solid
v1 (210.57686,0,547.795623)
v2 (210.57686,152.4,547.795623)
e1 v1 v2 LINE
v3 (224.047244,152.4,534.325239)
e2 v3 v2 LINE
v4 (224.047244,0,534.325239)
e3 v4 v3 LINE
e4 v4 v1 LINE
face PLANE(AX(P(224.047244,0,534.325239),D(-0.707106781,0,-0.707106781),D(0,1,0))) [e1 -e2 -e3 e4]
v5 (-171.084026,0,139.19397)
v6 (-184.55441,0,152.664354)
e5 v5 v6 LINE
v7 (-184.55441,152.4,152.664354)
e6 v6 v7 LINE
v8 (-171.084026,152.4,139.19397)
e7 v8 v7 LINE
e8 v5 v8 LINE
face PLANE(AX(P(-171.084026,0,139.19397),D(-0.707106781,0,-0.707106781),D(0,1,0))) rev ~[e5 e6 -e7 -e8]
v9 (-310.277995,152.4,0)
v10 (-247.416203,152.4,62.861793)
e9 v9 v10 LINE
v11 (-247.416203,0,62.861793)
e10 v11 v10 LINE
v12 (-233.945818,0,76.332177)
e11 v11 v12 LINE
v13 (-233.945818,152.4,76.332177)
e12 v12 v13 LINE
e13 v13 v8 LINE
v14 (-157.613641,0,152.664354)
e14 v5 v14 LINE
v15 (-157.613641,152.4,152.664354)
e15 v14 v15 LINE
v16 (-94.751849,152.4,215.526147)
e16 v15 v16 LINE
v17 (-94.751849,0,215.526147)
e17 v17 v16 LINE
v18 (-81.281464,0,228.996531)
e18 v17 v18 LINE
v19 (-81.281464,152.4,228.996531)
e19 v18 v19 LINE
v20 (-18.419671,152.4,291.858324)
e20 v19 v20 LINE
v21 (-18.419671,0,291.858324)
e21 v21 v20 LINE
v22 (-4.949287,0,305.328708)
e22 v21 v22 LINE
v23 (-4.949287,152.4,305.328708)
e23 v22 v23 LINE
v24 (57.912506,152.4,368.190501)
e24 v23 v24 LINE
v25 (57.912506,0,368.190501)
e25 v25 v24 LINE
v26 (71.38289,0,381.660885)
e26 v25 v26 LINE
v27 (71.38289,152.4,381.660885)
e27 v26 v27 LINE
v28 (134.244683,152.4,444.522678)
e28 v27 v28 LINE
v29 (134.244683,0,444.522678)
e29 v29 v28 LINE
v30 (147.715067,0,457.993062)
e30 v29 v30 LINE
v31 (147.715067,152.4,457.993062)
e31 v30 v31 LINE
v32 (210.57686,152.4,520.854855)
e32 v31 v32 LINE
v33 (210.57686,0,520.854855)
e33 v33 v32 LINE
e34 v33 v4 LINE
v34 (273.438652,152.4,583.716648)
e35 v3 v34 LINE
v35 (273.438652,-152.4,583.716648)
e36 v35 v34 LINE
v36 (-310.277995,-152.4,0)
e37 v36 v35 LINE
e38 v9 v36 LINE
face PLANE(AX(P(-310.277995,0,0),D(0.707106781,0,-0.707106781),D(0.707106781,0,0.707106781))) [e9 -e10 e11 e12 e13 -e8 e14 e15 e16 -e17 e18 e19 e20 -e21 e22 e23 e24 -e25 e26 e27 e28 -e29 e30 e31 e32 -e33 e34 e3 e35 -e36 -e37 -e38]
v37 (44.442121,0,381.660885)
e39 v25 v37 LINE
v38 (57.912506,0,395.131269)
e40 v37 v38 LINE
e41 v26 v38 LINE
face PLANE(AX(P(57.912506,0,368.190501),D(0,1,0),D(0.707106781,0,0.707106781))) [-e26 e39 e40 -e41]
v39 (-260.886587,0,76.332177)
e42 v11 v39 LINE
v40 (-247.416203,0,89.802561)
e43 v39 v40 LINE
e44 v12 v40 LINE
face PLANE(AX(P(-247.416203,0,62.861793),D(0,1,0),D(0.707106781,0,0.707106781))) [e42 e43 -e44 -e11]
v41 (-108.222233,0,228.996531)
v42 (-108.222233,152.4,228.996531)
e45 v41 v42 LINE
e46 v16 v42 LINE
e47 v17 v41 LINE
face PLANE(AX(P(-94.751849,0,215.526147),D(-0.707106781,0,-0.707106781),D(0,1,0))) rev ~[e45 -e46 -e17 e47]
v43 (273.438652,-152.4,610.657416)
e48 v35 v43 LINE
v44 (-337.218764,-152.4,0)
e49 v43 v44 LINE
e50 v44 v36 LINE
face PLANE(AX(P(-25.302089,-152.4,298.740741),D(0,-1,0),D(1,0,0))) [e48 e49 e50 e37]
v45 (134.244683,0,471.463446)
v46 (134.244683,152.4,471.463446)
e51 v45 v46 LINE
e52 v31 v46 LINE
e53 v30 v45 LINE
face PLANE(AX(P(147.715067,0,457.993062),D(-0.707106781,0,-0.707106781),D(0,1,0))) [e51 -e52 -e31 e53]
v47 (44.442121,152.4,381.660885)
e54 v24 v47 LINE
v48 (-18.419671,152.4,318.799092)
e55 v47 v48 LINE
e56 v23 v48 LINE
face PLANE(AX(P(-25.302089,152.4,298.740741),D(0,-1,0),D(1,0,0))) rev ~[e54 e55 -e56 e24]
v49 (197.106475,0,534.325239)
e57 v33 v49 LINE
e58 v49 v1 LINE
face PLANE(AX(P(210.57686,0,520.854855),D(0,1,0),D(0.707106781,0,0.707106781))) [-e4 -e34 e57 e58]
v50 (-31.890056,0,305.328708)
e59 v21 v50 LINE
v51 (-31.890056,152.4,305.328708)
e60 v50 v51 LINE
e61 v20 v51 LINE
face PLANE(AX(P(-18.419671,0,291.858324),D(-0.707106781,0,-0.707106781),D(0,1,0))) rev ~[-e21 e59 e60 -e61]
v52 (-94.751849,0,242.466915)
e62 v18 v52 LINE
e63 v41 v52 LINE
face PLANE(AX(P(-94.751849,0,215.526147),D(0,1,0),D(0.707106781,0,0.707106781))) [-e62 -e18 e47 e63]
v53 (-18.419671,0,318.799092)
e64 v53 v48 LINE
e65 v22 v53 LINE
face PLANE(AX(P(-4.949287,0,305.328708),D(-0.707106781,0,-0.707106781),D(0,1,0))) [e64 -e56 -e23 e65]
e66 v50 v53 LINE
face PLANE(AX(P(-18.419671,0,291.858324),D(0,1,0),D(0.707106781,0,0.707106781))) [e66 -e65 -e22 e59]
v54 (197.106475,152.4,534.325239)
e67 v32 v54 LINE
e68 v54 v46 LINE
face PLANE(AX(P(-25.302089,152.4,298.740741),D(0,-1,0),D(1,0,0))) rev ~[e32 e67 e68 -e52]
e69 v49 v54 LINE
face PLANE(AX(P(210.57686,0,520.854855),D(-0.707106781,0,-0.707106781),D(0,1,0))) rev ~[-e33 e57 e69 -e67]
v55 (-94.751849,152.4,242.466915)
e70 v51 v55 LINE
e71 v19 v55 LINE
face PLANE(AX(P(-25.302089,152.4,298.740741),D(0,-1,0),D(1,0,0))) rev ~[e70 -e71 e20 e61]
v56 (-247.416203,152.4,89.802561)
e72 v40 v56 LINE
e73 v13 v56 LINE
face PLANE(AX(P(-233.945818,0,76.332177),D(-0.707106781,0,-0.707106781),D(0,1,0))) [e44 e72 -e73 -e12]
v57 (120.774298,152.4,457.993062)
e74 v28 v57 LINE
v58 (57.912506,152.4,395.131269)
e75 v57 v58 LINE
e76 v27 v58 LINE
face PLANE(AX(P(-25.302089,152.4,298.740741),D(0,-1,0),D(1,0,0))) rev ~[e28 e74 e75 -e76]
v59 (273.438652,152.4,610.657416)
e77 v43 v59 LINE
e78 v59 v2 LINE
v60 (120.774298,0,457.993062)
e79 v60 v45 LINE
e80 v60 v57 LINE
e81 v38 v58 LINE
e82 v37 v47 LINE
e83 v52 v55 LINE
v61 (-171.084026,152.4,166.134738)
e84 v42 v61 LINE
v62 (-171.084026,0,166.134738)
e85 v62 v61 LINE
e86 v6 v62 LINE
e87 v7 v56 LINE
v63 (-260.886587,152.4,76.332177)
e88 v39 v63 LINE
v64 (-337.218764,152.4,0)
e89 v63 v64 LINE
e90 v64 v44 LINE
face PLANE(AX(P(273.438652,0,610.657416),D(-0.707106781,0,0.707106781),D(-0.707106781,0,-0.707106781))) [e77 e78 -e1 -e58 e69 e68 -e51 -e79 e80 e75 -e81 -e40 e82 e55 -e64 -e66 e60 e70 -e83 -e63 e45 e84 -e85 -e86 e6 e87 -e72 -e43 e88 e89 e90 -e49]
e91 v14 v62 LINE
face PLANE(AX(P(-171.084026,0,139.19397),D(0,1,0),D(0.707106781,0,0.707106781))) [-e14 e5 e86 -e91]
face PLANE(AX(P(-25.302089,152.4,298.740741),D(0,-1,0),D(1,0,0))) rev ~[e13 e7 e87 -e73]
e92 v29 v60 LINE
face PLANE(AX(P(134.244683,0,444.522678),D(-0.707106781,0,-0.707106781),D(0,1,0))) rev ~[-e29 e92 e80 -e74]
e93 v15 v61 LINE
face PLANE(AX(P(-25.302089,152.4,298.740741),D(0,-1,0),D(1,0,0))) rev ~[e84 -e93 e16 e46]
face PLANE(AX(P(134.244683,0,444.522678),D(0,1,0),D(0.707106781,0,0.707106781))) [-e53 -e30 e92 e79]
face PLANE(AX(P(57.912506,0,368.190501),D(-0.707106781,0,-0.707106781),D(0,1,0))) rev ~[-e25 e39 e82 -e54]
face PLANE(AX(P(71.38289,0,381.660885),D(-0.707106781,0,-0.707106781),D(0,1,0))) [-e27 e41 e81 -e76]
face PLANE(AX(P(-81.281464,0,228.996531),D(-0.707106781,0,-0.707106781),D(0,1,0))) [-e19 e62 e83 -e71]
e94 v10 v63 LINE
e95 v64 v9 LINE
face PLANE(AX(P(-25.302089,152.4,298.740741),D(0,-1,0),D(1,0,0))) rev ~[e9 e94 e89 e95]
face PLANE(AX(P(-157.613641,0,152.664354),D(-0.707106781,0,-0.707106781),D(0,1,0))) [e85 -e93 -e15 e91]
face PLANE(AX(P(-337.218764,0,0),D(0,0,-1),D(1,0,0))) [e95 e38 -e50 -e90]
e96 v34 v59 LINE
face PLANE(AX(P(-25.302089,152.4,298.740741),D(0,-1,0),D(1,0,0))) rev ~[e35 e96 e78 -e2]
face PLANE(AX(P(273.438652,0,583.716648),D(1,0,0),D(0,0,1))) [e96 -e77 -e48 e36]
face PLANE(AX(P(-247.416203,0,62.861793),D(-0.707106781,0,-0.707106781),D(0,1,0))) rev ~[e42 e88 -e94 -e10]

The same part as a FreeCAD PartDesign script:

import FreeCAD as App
import Part
import Sketcher

V = App.Vector
Q = App.Units.Quantity

doc = App.newDocument("Part")
body = doc.addObject("PartDesign::Body", "Body")

sketch1 = body.newObject("Sketcher::SketchObject", "Sketch")
sketch1.AttachmentSupport = (doc.getObject("XZ_Plane"), [""])
sketch1.MapMode = "FlatFace"
sketch1.addGeometry([
    Part.LineSegment(V(273, 611, 0), V(-337, 0, 0)),
    Part.LineSegment(V(-337, 0, 0), V(-310, 0, 0)),
    Part.LineSegment(V(-310, 0, 0), V(273, 584, 0)),
    Part.LineSegment(V(273, 584, 0), V(273, 611, 0)),
], False)
sketch1.addConstraint([
    Sketcher.Constraint("Coincident", 0, 2, 1, 1),
    Sketcher.Constraint("Coincident", 1, 2, 2, 1),
    Sketcher.Constraint("Coincident", 2, 2, 3, 1),
    Sketcher.Constraint("Coincident", 3, 2, 0, 1),
    Sketcher.Constraint("Horizontal", 1),
    Sketcher.Constraint("Vertical", 3),
    Sketcher.Constraint("PointOnObject", 0, 2, -1),
    Sketcher.Constraint("Parallel", 0, 2),
    Sketcher.Constraint("Equal", 1, 3),
    Sketcher.Constraint("Distance", 0, Q("34 in")),
    Sketcher.Constraint("Distance", 2, Q("32.5 in")),
    Sketcher.Constraint("DistanceX", 0, 2, -1, 1, 337.218764),
])
pad1 = body.newObject("PartDesign::Pad", "Pad")
pad1.Profile = sketch1
pad1.Length = Q("12 in")
pad1.Midplane = True

sketch2 = body.newObject("Sketcher::SketchObject", "Sketch001")
sketch2.Placement = App.Placement(V(-155.138998, 0, 155.138998), App.Rotation(V(0, 1, 0), V(0.707106781, 0, 0.707106781), V(0.707106781, 0, -0.707106781), "ZXY"))
sketch2.addGeometry([
    Part.LineSegment(V(0, 536, 0), V(0, 517, 0)),
    Part.LineSegment(V(0, 517, 0), V(152, 517, 0)),
    Part.LineSegment(V(152, 517, 0), V(152, 536, 0)),
    Part.LineSegment(V(152, 536, 0), V(0, 536, 0)),
    Part.LineSegment(V(0, 428, 0), V(0, 409, 0)),
    Part.LineSegment(V(0, 409, 0), V(152, 409, 0)),
    Part.LineSegment(V(152, 409, 0), V(152, 428, 0)),
    Part.LineSegment(V(152, 428, 0), V(0, 428, 0)),
    Part.LineSegment(V(0, 320, 0), V(0, 301, 0)),
    Part.LineSegment(V(0, 301, 0), V(152, 301, 0)),
    Part.LineSegment(V(152, 301, 0), V(152, 320, 0)),
    Part.LineSegment(V(152, 320, 0), V(0, 320, 0)),
    Part.LineSegment(V(0, 212, 0), V(0, 193, 0)),
    Part.LineSegment(V(0, 193, 0), V(152, 193, 0)),
    Part.LineSegment(V(152, 193, 0), V(152, 212, 0)),
    Part.LineSegment(V(152, 212, 0), V(0, 212, 0)),
    Part.LineSegment(V(0, 104, 0), V(0, 85, 0)),
    Part.LineSegment(V(0, 85, 0), V(152, 85, 0)),
    Part.LineSegment(V(152, 85, 0), V(152, 104, 0)),
    Part.LineSegment(V(152, 104, 0), V(0, 104, 0)),
    Part.LineSegment(V(0, -3, 0), V(0, -23, 0)),
    Part.LineSegment(V(0, -23, 0), V(152, -23, 0)),
    Part.LineSegment(V(152, -23, 0), V(152, -3, 0)),
    Part.LineSegment(V(152, -3, 0), V(0, -3, 0)),
    Part.LineSegment(V(0, -111, 0), V(0, -130, 0)),
    Part.LineSegment(V(0, -130, 0), V(152, -130, 0)),
    Part.LineSegment(V(152, -130, 0), V(152, -111, 0)),
    Part.LineSegment(V(152, -111, 0), V(0, -111, 0)),
], False)
sketch2.addConstraint([
    Sketcher.Constraint("Coincident", 0, 2, 1, 1),
    Sketcher.Constraint("Coincident", 1, 2, 2, 1),
    Sketcher.Constraint("Coincident", 2, 2, 3, 1),
    Sketcher.Constraint("Coincident", 3, 2, 0, 1),
    Sketcher.Constraint("Coincident", 4, 2, 5, 1),
    Sketcher.Constraint("Coincident", 5, 2, 6, 1),
    Sketcher.Constraint("Coincident", 6, 2, 7, 1),
    Sketcher.Constraint("Coincident", 7, 2, 4, 1),
    Sketcher.Constraint("Coincident", 8, 2, 9, 1),
    Sketcher.Constraint("Coincident", 9, 2, 10, 1),
    Sketcher.Constraint("Coincident", 10, 2, 11, 1),
    Sketcher.Constraint("Coincident", 11, 2, 8, 1),
    Sketcher.Constraint("Coincident", 12, 2, 13, 1),
    Sketcher.Constraint("Coincident", 13, 2, 14, 1),
    Sketcher.Constraint("Coincident", 14, 2, 15, 1),
    Sketcher.Constraint("Coincident", 15, 2, 12, 1),
    Sketcher.Constraint("Coincident", 16, 2, 17, 1),
    Sketcher.Constraint("Coincident", 17, 2, 18, 1),
    Sketcher.Constraint("Coincident", 18, 2, 19, 1),
    Sketcher.Constraint("Coincident", 19, 2, 16, 1),
    Sketcher.Constraint("Coincident", 20, 2, 21, 1),
    Sketcher.Constraint("Coincident", 21, 2, 22, 1),
    Sketcher.Constraint("Coincident", 22, 2, 23, 1),
    Sketcher.Constraint("Coincident", 23, 2, 20, 1),
    Sketcher.Constraint("Coincident", 24, 2, 25, 1),
    Sketcher.Constraint("Coincident", 25, 2, 26, 1),
    Sketcher.Constraint("Coincident", 26, 2, 27, 1),
    Sketcher.Constraint("Coincident", 27, 2, 24, 1),
    Sketcher.Constraint("Vertical", 0),
    Sketcher.Constraint("Horizontal", 1),
    Sketcher.Constraint("Vertical", 2),
    Sketcher.Constraint("Horizontal", 3),
    Sketcher.Constraint("Vertical", 4),
    Sketcher.Constraint("Horizontal", 5),
    Sketcher.Constraint("Vertical", 6),
    Sketcher.Constraint("Horizontal", 7),
    Sketcher.Constraint("Vertical", 8),
    Sketcher.Constraint("Horizontal", 9),
    Sketcher.Constraint("Vertical", 10),
    Sketcher.Constraint("Horizontal", 11),
    Sketcher.Constraint("Vertical", 12),
    Sketcher.Constraint("Horizontal", 13),
    Sketcher.Constraint("Vertical", 14),
    Sketcher.Constraint("Horizontal", 15),
    Sketcher.Constraint("Vertical", 16),
    Sketcher.Constraint("Horizontal", 17),
    Sketcher.Constraint("Vertical", 18),
    Sketcher.Constraint("Horizontal", 19),
    Sketcher.Constraint("Vertical", 20),
    Sketcher.Constraint("Horizontal", 21),
    Sketcher.Constraint("Vertical", 22),
    Sketcher.Constraint("Horizontal", 23),
    Sketcher.Constraint("Vertical", 24),
    Sketcher.Constraint("Horizontal", 25),
    Sketcher.Constraint("Vertical", 26),
    Sketcher.Constraint("Horizontal", 27),
    Sketcher.Constraint("PointOnObject", 0, 2, -2),
    Sketcher.Constraint("PointOnObject", 4, 2, -2),
    Sketcher.Constraint("PointOnObject", 8, 2, -2),
    Sketcher.Constraint("PointOnObject", 12, 2, -2),
    Sketcher.Constraint("PointOnObject", 16, 2, -2),
    Sketcher.Constraint("PointOnObject", 20, 2, -2),
    Sketcher.Constraint("PointOnObject", 24, 2, -2),
    Sketcher.Constraint("Vertical", 2, 2, 5, 2),
    Sketcher.Constraint("Vertical", 6, 2, 9, 2),
    Sketcher.Constraint("Vertical", 10, 2, 13, 2),
    Sketcher.Constraint("Vertical", 14, 2, 17, 2),
    Sketcher.Constraint("Vertical", 18, 2, 21, 2),
    Sketcher.Constraint("Vertical", 22, 2, 25, 2),
    Sketcher.Constraint("Equal", 2, 4),
    Sketcher.Constraint("Equal", 6, 8),
    Sketcher.Constraint("Equal", 10, 12),
    Sketcher.Constraint("Equal", 14, 16),
    Sketcher.Constraint("Equal", 18, 20),
    Sketcher.Constraint("Equal", 22, 24),
    Sketcher.Constraint("DistanceX", 1, 1, 1, 2, Q("6 in")),
    Sketcher.Constraint("DistanceY", 4, 2, 3, 2, Q("5 in")),
    Sketcher.Constraint("DistanceY", 8, 2, 7, 2, Q("5 in")),
    Sketcher.Constraint("DistanceY", 12, 2, 11, 2, Q("5 in")),
    Sketcher.Constraint("DistanceY", 16, 2, 15, 2, Q("5 in")),
    Sketcher.Constraint("DistanceY", 20, 2, 19, 2, Q("5 in")),
    Sketcher.Constraint("DistanceY", 24, 2, 23, 2, Q("5 in")),
    Sketcher.Constraint("DistanceY", 0, 2, 0, 1, Q("0.75 in")),
    Sketcher.Constraint("DistanceY", -1, 1, 0, 2, 517.200325),
])
pocket1 = body.newObject("PartDesign::Pocket", "Pocket")
pocket1.Profile = sketch2
pocket1.Length = Q("0.75 in")

doc.recompute()
